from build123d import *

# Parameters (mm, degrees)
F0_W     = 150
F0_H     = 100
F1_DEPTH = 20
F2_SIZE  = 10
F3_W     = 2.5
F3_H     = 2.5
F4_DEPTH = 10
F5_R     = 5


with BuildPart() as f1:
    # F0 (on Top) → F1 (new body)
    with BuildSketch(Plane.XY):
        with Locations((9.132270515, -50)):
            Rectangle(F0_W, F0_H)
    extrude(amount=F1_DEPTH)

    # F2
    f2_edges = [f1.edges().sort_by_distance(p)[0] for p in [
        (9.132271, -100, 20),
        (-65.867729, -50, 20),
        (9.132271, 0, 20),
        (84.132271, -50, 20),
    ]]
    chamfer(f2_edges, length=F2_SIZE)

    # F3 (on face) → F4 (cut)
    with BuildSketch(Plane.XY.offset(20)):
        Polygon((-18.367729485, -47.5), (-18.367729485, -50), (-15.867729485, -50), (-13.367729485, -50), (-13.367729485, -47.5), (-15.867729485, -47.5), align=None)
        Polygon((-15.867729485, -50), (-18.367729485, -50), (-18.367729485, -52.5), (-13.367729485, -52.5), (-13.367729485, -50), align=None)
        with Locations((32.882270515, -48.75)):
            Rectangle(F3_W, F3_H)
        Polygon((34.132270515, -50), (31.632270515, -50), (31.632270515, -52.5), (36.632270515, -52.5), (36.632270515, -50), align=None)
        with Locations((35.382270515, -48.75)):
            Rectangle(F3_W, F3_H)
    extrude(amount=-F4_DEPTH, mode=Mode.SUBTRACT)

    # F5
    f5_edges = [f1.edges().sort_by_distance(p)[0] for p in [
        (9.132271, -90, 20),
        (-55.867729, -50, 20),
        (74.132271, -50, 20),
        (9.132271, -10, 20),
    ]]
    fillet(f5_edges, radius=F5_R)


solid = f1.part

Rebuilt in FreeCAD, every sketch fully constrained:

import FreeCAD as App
import Part
import Sketcher
from FreeCAD import Vector
Q = App.Units.Quantity


def edges_at(feature, points):
    """Names of the edges that pass closest to the given points."""
    edges = feature.Shape.Edges
    near = lambda p: min(range(len(edges)), key=lambda i: edges[i].distToShape(Part.Vertex(*p))[0])
    return sorted({f"Edge{near(p) + 1}" for p in points})

doc = App.newDocument("Part")
body = doc.addObject("PartDesign::Body", "Body")

sketch1 = doc.addObject("Sketcher::SketchObject", "Sketch")
body.addObject(sketch1)
sketch1.AttachmentSupport = (doc.XY_Plane, [""])
sketch1.MapMode = "FlatFace"
sketch1.addGeometry([
    Part.LineSegment(Vector(-66, 0, 0), Vector(-66, -100, 0)),
    Part.LineSegment(Vector(-66, -100, 0), Vector(84, -100, 0)),
    Part.LineSegment(Vector(84, -100, 0), Vector(84, 0, 0)),
    Part.LineSegment(Vector(84, 0, 0), Vector(-66, 0, 0)),
], False)
sketch1.addConstraint([
    Sketcher.Constraint("Coincident", 0, 2, 1, 1),
    Sketcher.Constraint("Coincident", 1, 2, 2, 1),
    Sketcher.Constraint("Coincident", 2, 2, 3, 1),
    Sketcher.Constraint("Coincident", 3, 2, 0, 1),
    Sketcher.Constraint("Vertical", 0),
    Sketcher.Constraint("Horizontal", 1),
    Sketcher.Constraint("Vertical", 2),
    Sketcher.Constraint("Horizontal", 3),
    Sketcher.Constraint("PointOnObject", 2, 2, -1),
    Sketcher.Constraint("DistanceX", 1, 1, 1, 2, Q("150 mm")),
    Sketcher.Constraint("DistanceY", 0, 2, 0, 1, Q("100 mm")),
    Sketcher.Constraint("DistanceX", 0, 2, -1, 1, Q("65.867729 mm")),
])
pad1 = doc.addObject("PartDesign::Pad", "Pad")
body.addObject(pad1)
pad1.Profile = sketch1
pad1.Length = 20
doc.recompute()

chamfer = doc.addObject("PartDesign::Chamfer", "Chamfer")
body.addObject(chamfer)
chamfer.Base = (pad1, edges_at(pad1, [
    (9.132, -100, 20),
    (-65.868, -50, 20),
    (9.132, 0, 20),
    (84.132, -50, 20),
]))
chamfer.Size = 10

sketch2 = doc.addObject("Sketcher::SketchObject", "Sketch001")
body.addObject(sketch2)
sketch2.AttachmentSupport = (doc.XY_Plane, [""])
sketch2.MapMode = "FlatFace"
sketch2.AttachmentOffset = App.Placement(Vector(0, 0, 20), App.Rotation())
sketch2.addGeometry([
    Part.LineSegment(Vector(-18, -48, 0), Vector(-18, -52, 0)),
    Part.LineSegment(Vector(-18, -52, 0), Vector(-13, -52, 0)),
    Part.LineSegment(Vector(-13, -52, 0), Vector(-13, -48, 0)),
    Part.LineSegment(Vector(-13, -48, 0), Vector(-18, -48, 0)),
    Part.LineSegment(Vector(32, -48, 0), Vector(32, -52, 0)),
    Part.LineSegment(Vector(32, -52, 0), Vector(37, -52, 0)),
    Part.LineSegment(Vector(37, -52, 0), Vector(37, -48, 0)),
    Part.LineSegment(Vector(37, -48, 0), Vector(32, -48, 0)),
], False)
sketch2.addConstraint([
    Sketcher.Constraint("Coincident", 0, 2, 1, 1),
    Sketcher.Constraint("Coincident", 1, 2, 2, 1),
    Sketcher.Constraint("Coincident", 2, 2, 3, 1),
    Sketcher.Constraint("Coincident", 3, 2, 0, 1),
    Sketcher.Constraint("Coincident", 4, 2, 5, 1),
    Sketcher.Constraint("Coincident", 5, 2, 6, 1),
    Sketcher.Constraint("Coincident", 6, 2, 7, 1),
    Sketcher.Constraint("Coincident", 7, 2, 4, 1),
    Sketcher.Constraint("Vertical", 0),
    Sketcher.Constraint("Horizontal", 1),
    Sketcher.Constraint("Vertical", 2),
    Sketcher.Constraint("Horizontal", 3),
    Sketcher.Constraint("Vertical", 4),
    Sketcher.Constraint("Horizontal", 5),
    Sketcher.Constraint("Vertical", 6),
    Sketcher.Constraint("Horizontal", 7),
    Sketcher.Constraint("Horizontal", 1, 2, 4, 2),
    Sketcher.Constraint("Horizontal", 3, 2, 6, 2),
    Sketcher.Constraint("Equal", 3, 5),
    Sketcher.Constraint("Equal", 7, 0),
    Sketcher.Constraint("DistanceX", 1, 1, 1, 2, Q("5 mm")),
    Sketcher.Constraint("DistanceX", 1, 2, 4, 2, Q("45 mm")),
    Sketcher.Constraint("DistanceY", 0, 2, -1, 1, Q("52.5 mm")),
    Sketcher.Constraint("DistanceX", 0, 2, -1, 1, Q("18.367729 mm")),
])
pocket1 = doc.addObject("PartDesign::Pocket", "Pocket")
body.addObject(pocket1)
pocket1.Profile = sketch2
pocket1.Length = 10
doc.recompute()

fillet = doc.addObject("PartDesign::Fillet", "Fillet")
body.addObject(fillet)
fillet.Base = (pocket1, edges_at(pocket1, [
    (9.132, -90, 20),
    (-55.868, -50, 20),
    (74.132, -50, 20),
    (9.132, -10, 20),
]))
fillet.Radius = 5

doc.recompute()
